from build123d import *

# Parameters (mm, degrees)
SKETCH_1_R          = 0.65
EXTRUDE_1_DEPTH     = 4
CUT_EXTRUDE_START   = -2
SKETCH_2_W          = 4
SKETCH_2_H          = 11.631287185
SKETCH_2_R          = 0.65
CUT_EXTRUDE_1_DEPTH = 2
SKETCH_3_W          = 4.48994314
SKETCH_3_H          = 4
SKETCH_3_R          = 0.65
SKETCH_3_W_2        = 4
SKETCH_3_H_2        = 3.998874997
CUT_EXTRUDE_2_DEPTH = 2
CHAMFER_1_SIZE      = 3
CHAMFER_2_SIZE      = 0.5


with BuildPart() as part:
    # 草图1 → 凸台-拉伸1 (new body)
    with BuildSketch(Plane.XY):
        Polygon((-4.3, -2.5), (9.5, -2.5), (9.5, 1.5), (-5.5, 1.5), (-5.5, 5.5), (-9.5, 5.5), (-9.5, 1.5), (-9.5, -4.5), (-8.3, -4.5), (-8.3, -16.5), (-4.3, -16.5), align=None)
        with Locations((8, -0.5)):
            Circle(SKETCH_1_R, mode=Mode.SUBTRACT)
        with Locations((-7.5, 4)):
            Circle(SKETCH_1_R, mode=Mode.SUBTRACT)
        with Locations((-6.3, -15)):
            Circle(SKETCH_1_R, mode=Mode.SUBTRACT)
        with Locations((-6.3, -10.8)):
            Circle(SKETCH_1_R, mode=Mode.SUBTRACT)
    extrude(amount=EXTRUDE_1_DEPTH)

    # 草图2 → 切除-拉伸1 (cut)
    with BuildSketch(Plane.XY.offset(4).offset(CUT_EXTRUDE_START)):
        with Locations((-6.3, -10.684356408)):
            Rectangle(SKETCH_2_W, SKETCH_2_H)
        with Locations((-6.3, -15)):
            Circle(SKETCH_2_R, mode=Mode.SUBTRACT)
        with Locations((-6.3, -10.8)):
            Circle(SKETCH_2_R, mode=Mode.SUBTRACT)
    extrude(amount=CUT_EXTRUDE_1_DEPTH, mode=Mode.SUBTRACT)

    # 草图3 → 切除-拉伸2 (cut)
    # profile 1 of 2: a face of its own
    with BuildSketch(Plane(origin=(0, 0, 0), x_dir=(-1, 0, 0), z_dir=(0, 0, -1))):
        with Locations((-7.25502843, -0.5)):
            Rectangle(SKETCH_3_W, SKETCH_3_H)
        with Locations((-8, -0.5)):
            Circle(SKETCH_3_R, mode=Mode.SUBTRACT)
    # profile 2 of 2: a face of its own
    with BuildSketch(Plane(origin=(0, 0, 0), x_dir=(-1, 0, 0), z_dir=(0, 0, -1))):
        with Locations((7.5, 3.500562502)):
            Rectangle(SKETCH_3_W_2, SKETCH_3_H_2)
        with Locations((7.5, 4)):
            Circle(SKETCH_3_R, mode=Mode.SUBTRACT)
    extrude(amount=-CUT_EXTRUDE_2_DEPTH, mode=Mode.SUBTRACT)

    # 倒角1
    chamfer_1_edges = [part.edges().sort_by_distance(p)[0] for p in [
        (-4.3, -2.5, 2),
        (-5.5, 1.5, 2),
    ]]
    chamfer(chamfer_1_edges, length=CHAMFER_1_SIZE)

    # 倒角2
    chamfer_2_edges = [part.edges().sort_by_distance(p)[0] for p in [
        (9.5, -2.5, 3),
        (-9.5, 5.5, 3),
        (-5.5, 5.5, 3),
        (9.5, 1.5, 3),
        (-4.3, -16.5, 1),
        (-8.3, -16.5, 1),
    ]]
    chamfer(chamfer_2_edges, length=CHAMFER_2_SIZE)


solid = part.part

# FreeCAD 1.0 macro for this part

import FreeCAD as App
import Part
import Sketcher

V = App.Vector
Q = App.Units.Quantity


def edges_at(feature, points):
    """Names of the edges that pass closest to the given points."""
    edges = feature.Shape.Edges
    near = lambda p: min(range(len(edges)), key=lambda i: edges[i].distToShape(Part.Vertex(*p))[0])
    return sorted({f"Edge{near(p) + 1}" for p in points})

doc = App.newDocument("Part")
body = doc.addObject("PartDesign::Body", "Body")

# Sketch on XY plane
sketch1 = body.newObject("Sketcher::SketchObject", "Sketch")
sketch1.AttachmentSupport = (doc.getObject("XY_Plane"), [""])
sketch1.MapMode = "FlatFace"
sketch1.addGeometry(Part.LineSegment(V(-4.3, -2.5, 0), V(9.5, -2.5, 0)), False)
sketch1.addGeometry(Part.LineSegment(V(9.5, -2.5, 0), V(9.5, 1.5, 0)), False)
sketch1.addGeometry(Part.LineSegment(V(9.5, 1.5, 0), V(-5.5, 1.5, 0)), False)
sketch1.addGeometry(Part.LineSegment(V(-5.5, 1.5, 0), V(-5.5, 5.5, 0)), False)
sketch1.addGeometry(Part.LineSegment(V(-5.5, 5.5, 0), V(-9.5, 5.5, 0)), False)
sketch1.addGeometry(Part.LineSegment(V(-9.5, 5.5, 0), V(-9.5, -4.5, 0)), False)
sketch1.addGeometry(Part.LineSegment(V(-9.5, -4.5, 0), V(-8.3, -4.5, 0)), False)
sketch1.addGeometry(Part.LineSegment(V(-8.3, -4.5, 0), V(-8.3, -16.5, 0)), False)
sketch1.addGeometry(Part.LineSegment(V(-8.3, -16.5, 0), V(-4.3, -16.5, 0)), False)
sketch1.addGeometry(Part.LineSegment(V(-4.3, -16.5, 0), V(-4.3, -2.5, 0)), False)
sketch1.addGeometry(Part.Circle(V(-6.3, -15, 0), V(0, 0, 1), 0.7), False)
sketch1.addGeometry(Part.Circle(V(-6.3, -10.8, 0), V(0, 0, 1), 0.7), False)
sketch1.addGeometry(Part.Circle(V(-7.5, 4, 0), V(0, 0, 1), 0.7), False)
sketch1.addGeometry(Part.Circle(V(8, -0.5, 0), V(0, 0, 1), 0.7), False)
sketch1.addConstraint(Sketcher.Constraint("Coincident", 0, 2, 1, 1))
sketch1.addConstraint(Sketcher.Constraint("Coincident", 1, 2, 2, 1))
sketch1.addConstraint(Sketcher.Constraint("Coincident", 2, 2, 3, 1))
sketch1.addConstraint(Sketcher.Constraint("Coincident", 3, 2, 4, 1))
sketch1.addConstraint(Sketcher.Constraint("Coincident", 4, 2, 5, 1))
sketch1.addConstraint(Sketcher.Constraint("Coincident", 5, 2, 6, 1))
sketch1.addConstraint(Sketcher.Constraint("Coincident", 6, 2, 7, 1))
sketch1.addConstraint(Sketcher.Constraint("Coincident", 7, 2, 8, 1))
sketch1.addConstraint(Sketcher.Constraint("Coincident", 8, 2, 9, 1))
sketch1.addConstraint(Sketcher.Constraint("Coincident", 9, 2, 0, 1))
sketch1.addConstraint(Sketcher.Constraint("Horizontal", 0))
sketch1.addConstraint(Sketcher.Constraint("Vertical", 1))
sketch1.addConstraint(Sketcher.Constraint("Horizontal", 2))
sketch1.addConstraint(Sketcher.Constraint("Vertical", 3))
sketch1.addConstraint(Sketcher.Constraint("Horizontal", 4))
sketch1.addConstraint(Sketcher.Constraint("Vertical", 5))
sketch1.addConstraint(Sketcher.Constraint("Horizontal", 6))
sketch1.addConstraint(Sketcher.Constraint("Vertical", 7))
sketch1.addConstraint(Sketcher.Constraint("Horizontal", 8))
sketch1.addConstraint(Sketcher.Constraint("Vertical", 9))
sketch1.addConstraint(Sketcher.Constraint("Equal", 10, 11))
sketch1.addConstraint(Sketcher.Constraint("Equal", 11, 12))
sketch1.addConstraint(Sketcher.Constraint("Equal", 12, 13))
sketch1.addConstraint(Sketcher.Constraint("Vertical", 10, 3, 11, 3))
sketch1.addConstraint(Sketcher.Constraint("Equal", 4, 8))
sketch1.addConstraint(Sketcher.Constraint("Equal", 8, 1))
sketch1.addConstraint(Sketcher.Constraint("Equal", 1, 3))
sketch1.addConstraint(Sketcher.Constraint("Diameter", 10, Q("1.3 mm")))
sketch1.addConstraint(Sketcher.Constraint("DistanceX", 2, 2, 2, 1, Q("15 mm")))
sketch1.addConstraint(Sketcher.Constraint("DistanceX", 4, 2, 4, 1, Q("4 mm")))
sketch1.addConstraint(Sketcher.Constraint("DistanceY", 5, 2, 5, 1, Q("10 mm")))
sketch1.addConstraint(Sketcher.Constraint("DistanceY", 7, 2, 7, 1, Q("12 mm")))
sketch1.addConstraint(Sketcher.Constraint("DistanceX", 0, 1, 0, 2, Q("13.8 mm")))
sketch1.addConstraint(Sketcher.Constraint("DistanceY", 10, 3, -1, 1, Q("15 mm")))
sketch1.addConstraint(Sketcher.Constraint("DistanceY", -1, 1, 12, 3, Q("4 mm")))
sketch1.addConstraint(Sketcher.Constraint("DistanceX", -1, 1, 13, 3, Q("8 mm")))
sketch1.addConstraint(Sketcher.Constraint("DistanceY", 0, 2, 13, 3, Q("2 mm")))
sketch1.addConstraint(Sketcher.Constraint("DistanceX", 12, 3, 0, 2, Q("17 mm")))
sketch1.addConstraint(Sketcher.Constraint("DistanceX", 6, 2, 11, 3, Q("2 mm")))
sketch1.addConstraint(Sketcher.Constraint("DistanceX", 10, 3, -1, 1, Q("6.3 mm")))
sketch1.addConstraint(Sketcher.Constraint("DistanceY", 11, 3, -1, 1, Q("10.8 mm")))
sketch1.addConstraint(Sketcher.Constraint("DistanceY", 13, 3, -1, 1, Q("0.5 mm")))
pad1 = body.newObject("PartDesign::Pad", "Pad")
pad1.Profile = sketch1
pad1.Length = 4

# Sketch on XY plane
sketch2 = body.newObject("Sketcher::SketchObject", "Sketch001")
sketch2.AttachmentSupport = (doc.getObject("XY_Plane"), [""])
sketch2.MapMode = "FlatFace"
sketch2.AttachmentOffset = App.Placement(V(0, 0, 2), App.Rotation())
sketch2.addGeometry(Part.LineSegment(V(-8.3, -4.9, 0), V(-8.3, -16.5, 0)), False)
sketch2.addGeometry(Part.LineSegment(V(-8.3, -16.5, 0), V(-4.3, -16.5, 0)), False)
sketch2.addGeometry(Part.LineSegment(V(-4.3, -16.5, 0), V(-4.3, -4.9, 0)), False)
sketch2.addGeometry(Part.LineSegment(V(-4.3, -4.9, 0), V(-8.3, -4.9, 0)), False)
sketch2.addGeometry(Part.Circle(V(-6.3, -15, 0), V(0, 0, 1), 0.7), False)
sketch2.addGeometry(Part.Circle(V(-6.3, -10.8, 0), V(0, 0, 1), 0.7), False)
sketch2.addConstraint(Sketcher.Constraint("Coincident", 0, 2, 1, 1))
sketch2.addConstraint(Sketcher.Constraint("Coincident", 1, 2, 2, 1))
sketch2.addConstraint(Sketcher.Constraint("Coincident", 2, 2, 3, 1))
sketch2.addConstraint(Sketcher.Constraint("Coincident", 3, 2, 0, 1))
sketch2.addConstraint(Sketcher.Constraint("Vertical", 0))
sketch2.addConstraint(Sketcher.Constraint("Horizontal", 1))
sketch2.addConstraint(Sketcher.Constraint("Vertical", 2))
sketch2.addConstraint(Sketcher.Constraint("Horizontal", 3))
sketch2.addConstraint(Sketcher.Constraint("Equal", 4, 5))
sketch2.addConstraint(Sketcher.Constraint("Vertical", 4, 3, 5, 3))
sketch2.addConstraint(Sketcher.Constraint("Diameter", 4, Q("1.3 mm")))
sketch2.addConstraint(Sketcher.Constraint("DistanceX", 1, 1, 1, 2, Q("4 mm")))
sketch2.addConstraint(Sketcher.Constraint("DistanceY", 4, 3, -1, 1, Q("15 mm")))
sketch2.addConstraint(Sketcher.Constraint("DistanceX", 0, 2, 4, 3, Q("2 mm")))
sketch2.addConstraint(Sketcher.Constraint("DistanceX", 4, 3, -1, 1, Q("6.3 mm")))
sketch2.addConstraint(Sketcher.Constraint("DistanceY", 5, 3, -1, 1, Q("10.8 mm")))
sketch2.addConstraint(Sketcher.Constraint("DistanceY", 0, 2, -1, 1, Q("16.5 mm")))
sketch2.addConstraint(Sketcher.Constraint("DistanceY", 0, 2, 0, 1, Q("11.631287 mm")))
pocket1 = body.newObject("PartDesign::Pocket", "Pocket")
pocket1.Profile = sketch2
pocket1.Length = 2
pocket1.Reversed = True

# Sketch on XY plane
sketch3 = body.newObject("Sketcher::SketchObject", "Sketch002")
sketch3.AttachmentSupport = (doc.getObject("XY_Plane"), [""])
sketch3.MapMode = "FlatFace"
sketch3.addGeometry(Part.LineSegment(V(9.5, 1.5, 0), V(9.5, -2.5, 0)), False)
sketch3.addGeometry(Part.LineSegment(V(9.5, -2.5, 0), V(5, -2.5, 0)), False)
sketch3.addGeometry(Part.LineSegment(V(5, -2.5, 0), V(5, 1.5, 0)), False)
sketch3.addGeometry(Part.LineSegment(V(5, 1.5, 0), V(9.5, 1.5, 0)), False)
sketch3.addGeometry(Part.Circle(V(8, -0.5, 0), V(0, 0, 1), 0.7), False)
sketch3.addGeometry(Part.LineSegment(V(-5.5, 5.5, 0), V(-5.5, 1.5, 0)), False)
sketch3.addGeometry(Part.LineSegment(V(-5.5, 1.5, 0), V(-9.5, 1.5, 0)), False)
sketch3.addGeometry(Part.LineSegment(V(-9.5, 1.5, 0), V(-9.5, 5.5, 0)), False)
sketch3.addGeometry(Part.LineSegment(V(-9.5, 5.5, 0), V(-5.5, 5.5, 0)), False)
sketch3.addGeometry(Part.Circle(V(-7.5, 4, 0), V(0, 0, 1), 0.7), False)
sketch3.addConstraint(Sketcher.Constraint("Coincident", 0, 2, 1, 1))
sketch3.addConstraint(Sketcher.Constraint("Coincident", 1, 2, 2, 1))
sketch3.addConstraint(Sketcher.Constraint("Coincident", 2, 2, 3, 1))
sketch3.addConstraint(Sketcher.Constraint("Coincident", 3, 2, 0, 1))
sketch3.addConstraint(Sketcher.Constraint("Coincident", 5, 2, 6, 1))
sketch3.addConstraint(Sketcher.Constraint("Coincident", 6, 2, 7, 1))
sketch3.addConstraint(Sketcher.Constraint("Coincident", 7, 2, 8, 1))
sketch3.addConstraint(Sketcher.Constraint("Coincident", 8, 2, 5, 1))
sketch3.addConstraint(Sketcher.Constraint("Vertical", 0))
sketch3.addConstraint(Sketcher.Constraint("Horizontal", 1))
sketch3.addConstraint(Sketcher.Constraint("Vertical", 2))
sketch3.addConstraint(Sketcher.Constraint("Horizontal", 3))
sketch3.addConstraint(Sketcher.Constraint("Vertical", 5))
sketch3.addConstraint(Sketcher.Constraint("Horizontal", 6))
sketch3.addConstraint(Sketcher.Constraint("Vertical", 7))
sketch3.addConstraint(Sketcher.Constraint("Horizontal", 8))
sketch3.addConstraint(Sketcher.Constraint("Equal", 4, 9))
sketch3.addConstraint(Sketcher.Constraint("Equal", 8, 0))
sketch3.addConstraint(Sketcher.Constraint("Diameter", 4, Q("1.3 mm")))
sketch3.addConstraint(Sketcher.Constraint("DistanceX", 6, 2, 6, 1, Q("4 mm")))
sketch3.addConstraint(Sketcher.Constraint("DistanceX", -1, 1, 4, 3, Q("8 mm")))
sketch3.addConstraint(Sketcher.Constraint("DistanceY", -1, 1, 9, 3, Q("4 mm")))
sketch3.addConstraint(Sketcher.Constraint("DistanceY", 0, 2, 4, 3, Q("2 mm")))
sketch3.addConstraint(Sketcher.Constraint("DistanceX", 9, 3, 0, 2, Q("17 mm")))
sketch3.addConstraint(Sketcher.Constraint("DistanceX", 9, 3, 5, 2, Q("2 mm")))
sketch3.addConstraint(Sketcher.Constraint("DistanceY", 2, 2, 7, 2, Q("4 mm")))
sketch3.addConstraint(Sketcher.Constraint("DistanceY", 4, 3, -1, 1, Q("0.5 mm")))
sketch3.addConstraint(Sketcher.Constraint("DistanceX", 9, 3, -1, 1, Q("7.5 mm")))
sketch3.addConstraint(Sketcher.Constraint("DistanceX", 1, 2, 1, 1, Q("4.489943 mm")))
sketch3.addConstraint(Sketcher.Constraint("DistanceY", 5, 2, 5, 1, Q("3.998875 mm")))
pocket2 = body.newObject("PartDesign::Pocket", "Pocket001")
pocket2.Profile = sketch3
pocket2.Length = 2
pocket2.Reversed = True
doc.recompute()

chamfer = body.newObject("PartDesign::Chamfer", "Chamfer")
chamfer.Base = (pocket2, edges_at(pocket2, [(-4.3, -2.5, 2), (-5.5, 1.5, 2)]))
chamfer.Size = 3
doc.recompute()

chamfer2 = body.newObject("PartDesign::Chamfer", "Chamfer001")
chamfer2.Base = (chamfer, edges_at(chamfer, [
    (9.5, -2.5, 3),
    (-9.5, 5.5, 3),
    (-5.5, 5.5, 3),
    (9.5, 1.5, 3),
    (-4.3, -16.5, 1),
    (-8.3, -16.5, 1),
]))
chamfer2.Size = 0.5

doc.recompute()
